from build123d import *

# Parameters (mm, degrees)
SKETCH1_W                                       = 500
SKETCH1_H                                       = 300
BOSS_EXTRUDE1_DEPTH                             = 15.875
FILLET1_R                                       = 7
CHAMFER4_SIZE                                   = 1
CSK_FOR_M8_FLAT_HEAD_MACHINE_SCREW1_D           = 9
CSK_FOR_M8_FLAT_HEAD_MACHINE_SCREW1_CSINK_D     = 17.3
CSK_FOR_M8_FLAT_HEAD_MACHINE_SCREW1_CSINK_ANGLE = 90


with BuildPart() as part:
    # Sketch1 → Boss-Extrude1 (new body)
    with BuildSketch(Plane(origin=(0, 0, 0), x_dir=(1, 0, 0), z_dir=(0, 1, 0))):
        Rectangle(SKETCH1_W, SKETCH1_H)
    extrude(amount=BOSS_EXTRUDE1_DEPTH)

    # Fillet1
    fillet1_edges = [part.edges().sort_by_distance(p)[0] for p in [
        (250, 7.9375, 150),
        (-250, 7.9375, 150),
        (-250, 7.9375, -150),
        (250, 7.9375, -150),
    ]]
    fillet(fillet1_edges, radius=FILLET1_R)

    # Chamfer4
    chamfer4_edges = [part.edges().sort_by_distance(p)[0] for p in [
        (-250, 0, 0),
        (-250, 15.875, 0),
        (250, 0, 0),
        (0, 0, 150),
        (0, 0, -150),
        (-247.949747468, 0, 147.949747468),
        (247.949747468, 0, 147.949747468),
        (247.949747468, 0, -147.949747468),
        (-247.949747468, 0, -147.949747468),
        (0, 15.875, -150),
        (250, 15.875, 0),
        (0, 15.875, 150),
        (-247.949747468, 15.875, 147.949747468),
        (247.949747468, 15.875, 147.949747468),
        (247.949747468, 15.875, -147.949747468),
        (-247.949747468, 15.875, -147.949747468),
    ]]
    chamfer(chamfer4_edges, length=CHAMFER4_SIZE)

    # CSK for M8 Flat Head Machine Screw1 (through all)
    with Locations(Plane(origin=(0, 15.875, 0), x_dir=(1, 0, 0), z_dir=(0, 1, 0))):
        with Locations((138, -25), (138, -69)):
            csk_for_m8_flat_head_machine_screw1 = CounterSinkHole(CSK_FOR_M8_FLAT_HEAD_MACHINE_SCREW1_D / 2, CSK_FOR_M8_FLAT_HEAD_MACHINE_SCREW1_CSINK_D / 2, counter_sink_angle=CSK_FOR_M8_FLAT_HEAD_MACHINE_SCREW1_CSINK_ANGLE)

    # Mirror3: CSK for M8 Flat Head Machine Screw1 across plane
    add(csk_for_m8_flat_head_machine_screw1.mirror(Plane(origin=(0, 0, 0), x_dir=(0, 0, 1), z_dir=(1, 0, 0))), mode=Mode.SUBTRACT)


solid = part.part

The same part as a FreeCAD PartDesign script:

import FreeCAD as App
import Part
import Sketcher
Q = App.Units.Quantity


def edges_at(feature, points):
    """Names of the edges that pass closest to the given points."""
    edges = feature.Shape.Edges
    near = lambda p: min(range(len(edges)), key=lambda i: edges[i].distToShape(Part.Vertex(*p))[0])
    return sorted({f"Edge{near(p) + 1}" for p in points})


def add_polygon(sketch, points):
    """Adds a closed chain of lines whose ends are joined by coincident constraints."""
    first, n = sketch.GeometryCount, len(points)
    for a, b in zip(points, points[1:] + points[:1]):
        sketch.addGeometry(Part.LineSegment(App.Vector(*a, 0), App.Vector(*b, 0)), False)
    for i in range(n):
        sketch.addConstraint(Sketcher.Constraint("Coincident", first + i, 2, first + (i + 1) % n, 1))

doc = App.newDocument("Part")
body = doc.addObject("PartDesign::Body", "Body")

# Sketch on XZ plane
sketch1 = body.newObject("Sketcher::SketchObject", "Sketch")
sketch1.AttachmentSupport = (doc.getObject("XZ_Plane"), [""])
sketch1.MapMode = "FlatFace"
add_polygon(sketch1, [(-250, -150), (-250, 150), (250, 150), (250, -150)])  # lines 0-3
sketch1.addConstraint([
    Sketcher.Constraint("Vertical", 0),
    Sketcher.Constraint("Horizontal", 1),
    Sketcher.Constraint("Vertical", 2),
    Sketcher.Constraint("Horizontal", 3),
    Sketcher.Constraint("Symmetric", 0, 2, 2, 2, -1, 1),
    Sketcher.Constraint("DistanceX", 1, 1, 1, 2, Q("500 mm")),
    Sketcher.Constraint("DistanceY", 0, 1, 0, 2, Q("300 mm")),
])
pad1 = body.newObject("PartDesign::Pad", "Pad")
pad1.Profile = sketch1
pad1.Length = 15.875
pad1.Reversed = True
doc.recompute()

fillet = body.newObject("PartDesign::Fillet", "Fillet")
fillet.Base = (pad1, edges_at(pad1, [
    (250, 7.938, 150),
    (-250, 7.938, 150),
    (-250, 7.938, -150),
    (250, 7.938, -150),
]))
fillet.Radius = 7
doc.recompute()

chamfer = body.newObject("PartDesign::Chamfer", "Chamfer")
chamfer.Base = (fillet, edges_at(fillet, [
    (-250, 0, 0),
    (-250, 15.875, 0),
    (250, 0, 0),
    (0, 0, 150),
    (0, 0, -150),
    (-247.95, 0, 147.95),
    (247.95, 0, 147.95),
    (247.95, 0, -147.95),
    (-247.95, 0, -147.95),
    (0, 15.875, -150),
    (250, 15.875, 0),
    (0, 15.875, 150),
    (-247.95, 15.875, 147.95),
    (247.95, 15.875, 147.95),
    (247.95, 15.875, -147.95),
    (-247.95, 15.875, -147.95),
]))
chamfer.Size = 1

# Sketch on XZ plane
sketch2 = body.newObject("Sketcher::SketchObject", "Sketch001")
sketch2.AttachmentSupport = (doc.getObject("XZ_Plane"), [""])
sketch2.MapMode = "FlatFace"
sketch2.AttachmentOffset = App.Placement(App.Vector(0, 0, -15.875), App.Rotation())
sketch2.addGeometry([
    Part.Circle(App.Vector(138, 25, 0), App.Vector(0, 0, 1), 4.5),
    Part.Circle(App.Vector(138, 69, 0), App.Vector(0, 0, 1), 4.5),
], False)
sketch2.addConstraint([
    Sketcher.Constraint("Equal", 0, 1),
    Sketcher.Constraint("Vertical", 0, 3, 1, 3),
    Sketcher.Constraint("Diameter", 0, Q("9 mm")),
    Sketcher.Constraint("DistanceX", -1, 1, 0, 3, Q("138 mm")),
    Sketcher.Constraint("DistanceY", -1, 1, 0, 3, Q("25 mm")),
    Sketcher.Constraint("DistanceY", -1, 1, 1, 3, Q("69 mm")),
])
doc.recompute()
hole = body.newObject("PartDesign::Hole", "Hole")
hole.Profile = sketch2
hole.ThreadType = "None"
hole.Diameter = 9
hole.DepthType = "ThroughAll"
hole.HoleCutType = "Countersink"
hole.HoleCutDiameter = 17.3
hole.HoleCutCountersinkAngle = 90
hole.Reversed = True
doc.recompute()

mirrored = body.newObject("PartDesign::Mirrored", "Mirrored")
mirrored.Originals = [hole]
mirrored.MirrorPlane = (doc.getObject("YZ_Plane"), [""])
body.Tip = mirrored

doc.recompute()
